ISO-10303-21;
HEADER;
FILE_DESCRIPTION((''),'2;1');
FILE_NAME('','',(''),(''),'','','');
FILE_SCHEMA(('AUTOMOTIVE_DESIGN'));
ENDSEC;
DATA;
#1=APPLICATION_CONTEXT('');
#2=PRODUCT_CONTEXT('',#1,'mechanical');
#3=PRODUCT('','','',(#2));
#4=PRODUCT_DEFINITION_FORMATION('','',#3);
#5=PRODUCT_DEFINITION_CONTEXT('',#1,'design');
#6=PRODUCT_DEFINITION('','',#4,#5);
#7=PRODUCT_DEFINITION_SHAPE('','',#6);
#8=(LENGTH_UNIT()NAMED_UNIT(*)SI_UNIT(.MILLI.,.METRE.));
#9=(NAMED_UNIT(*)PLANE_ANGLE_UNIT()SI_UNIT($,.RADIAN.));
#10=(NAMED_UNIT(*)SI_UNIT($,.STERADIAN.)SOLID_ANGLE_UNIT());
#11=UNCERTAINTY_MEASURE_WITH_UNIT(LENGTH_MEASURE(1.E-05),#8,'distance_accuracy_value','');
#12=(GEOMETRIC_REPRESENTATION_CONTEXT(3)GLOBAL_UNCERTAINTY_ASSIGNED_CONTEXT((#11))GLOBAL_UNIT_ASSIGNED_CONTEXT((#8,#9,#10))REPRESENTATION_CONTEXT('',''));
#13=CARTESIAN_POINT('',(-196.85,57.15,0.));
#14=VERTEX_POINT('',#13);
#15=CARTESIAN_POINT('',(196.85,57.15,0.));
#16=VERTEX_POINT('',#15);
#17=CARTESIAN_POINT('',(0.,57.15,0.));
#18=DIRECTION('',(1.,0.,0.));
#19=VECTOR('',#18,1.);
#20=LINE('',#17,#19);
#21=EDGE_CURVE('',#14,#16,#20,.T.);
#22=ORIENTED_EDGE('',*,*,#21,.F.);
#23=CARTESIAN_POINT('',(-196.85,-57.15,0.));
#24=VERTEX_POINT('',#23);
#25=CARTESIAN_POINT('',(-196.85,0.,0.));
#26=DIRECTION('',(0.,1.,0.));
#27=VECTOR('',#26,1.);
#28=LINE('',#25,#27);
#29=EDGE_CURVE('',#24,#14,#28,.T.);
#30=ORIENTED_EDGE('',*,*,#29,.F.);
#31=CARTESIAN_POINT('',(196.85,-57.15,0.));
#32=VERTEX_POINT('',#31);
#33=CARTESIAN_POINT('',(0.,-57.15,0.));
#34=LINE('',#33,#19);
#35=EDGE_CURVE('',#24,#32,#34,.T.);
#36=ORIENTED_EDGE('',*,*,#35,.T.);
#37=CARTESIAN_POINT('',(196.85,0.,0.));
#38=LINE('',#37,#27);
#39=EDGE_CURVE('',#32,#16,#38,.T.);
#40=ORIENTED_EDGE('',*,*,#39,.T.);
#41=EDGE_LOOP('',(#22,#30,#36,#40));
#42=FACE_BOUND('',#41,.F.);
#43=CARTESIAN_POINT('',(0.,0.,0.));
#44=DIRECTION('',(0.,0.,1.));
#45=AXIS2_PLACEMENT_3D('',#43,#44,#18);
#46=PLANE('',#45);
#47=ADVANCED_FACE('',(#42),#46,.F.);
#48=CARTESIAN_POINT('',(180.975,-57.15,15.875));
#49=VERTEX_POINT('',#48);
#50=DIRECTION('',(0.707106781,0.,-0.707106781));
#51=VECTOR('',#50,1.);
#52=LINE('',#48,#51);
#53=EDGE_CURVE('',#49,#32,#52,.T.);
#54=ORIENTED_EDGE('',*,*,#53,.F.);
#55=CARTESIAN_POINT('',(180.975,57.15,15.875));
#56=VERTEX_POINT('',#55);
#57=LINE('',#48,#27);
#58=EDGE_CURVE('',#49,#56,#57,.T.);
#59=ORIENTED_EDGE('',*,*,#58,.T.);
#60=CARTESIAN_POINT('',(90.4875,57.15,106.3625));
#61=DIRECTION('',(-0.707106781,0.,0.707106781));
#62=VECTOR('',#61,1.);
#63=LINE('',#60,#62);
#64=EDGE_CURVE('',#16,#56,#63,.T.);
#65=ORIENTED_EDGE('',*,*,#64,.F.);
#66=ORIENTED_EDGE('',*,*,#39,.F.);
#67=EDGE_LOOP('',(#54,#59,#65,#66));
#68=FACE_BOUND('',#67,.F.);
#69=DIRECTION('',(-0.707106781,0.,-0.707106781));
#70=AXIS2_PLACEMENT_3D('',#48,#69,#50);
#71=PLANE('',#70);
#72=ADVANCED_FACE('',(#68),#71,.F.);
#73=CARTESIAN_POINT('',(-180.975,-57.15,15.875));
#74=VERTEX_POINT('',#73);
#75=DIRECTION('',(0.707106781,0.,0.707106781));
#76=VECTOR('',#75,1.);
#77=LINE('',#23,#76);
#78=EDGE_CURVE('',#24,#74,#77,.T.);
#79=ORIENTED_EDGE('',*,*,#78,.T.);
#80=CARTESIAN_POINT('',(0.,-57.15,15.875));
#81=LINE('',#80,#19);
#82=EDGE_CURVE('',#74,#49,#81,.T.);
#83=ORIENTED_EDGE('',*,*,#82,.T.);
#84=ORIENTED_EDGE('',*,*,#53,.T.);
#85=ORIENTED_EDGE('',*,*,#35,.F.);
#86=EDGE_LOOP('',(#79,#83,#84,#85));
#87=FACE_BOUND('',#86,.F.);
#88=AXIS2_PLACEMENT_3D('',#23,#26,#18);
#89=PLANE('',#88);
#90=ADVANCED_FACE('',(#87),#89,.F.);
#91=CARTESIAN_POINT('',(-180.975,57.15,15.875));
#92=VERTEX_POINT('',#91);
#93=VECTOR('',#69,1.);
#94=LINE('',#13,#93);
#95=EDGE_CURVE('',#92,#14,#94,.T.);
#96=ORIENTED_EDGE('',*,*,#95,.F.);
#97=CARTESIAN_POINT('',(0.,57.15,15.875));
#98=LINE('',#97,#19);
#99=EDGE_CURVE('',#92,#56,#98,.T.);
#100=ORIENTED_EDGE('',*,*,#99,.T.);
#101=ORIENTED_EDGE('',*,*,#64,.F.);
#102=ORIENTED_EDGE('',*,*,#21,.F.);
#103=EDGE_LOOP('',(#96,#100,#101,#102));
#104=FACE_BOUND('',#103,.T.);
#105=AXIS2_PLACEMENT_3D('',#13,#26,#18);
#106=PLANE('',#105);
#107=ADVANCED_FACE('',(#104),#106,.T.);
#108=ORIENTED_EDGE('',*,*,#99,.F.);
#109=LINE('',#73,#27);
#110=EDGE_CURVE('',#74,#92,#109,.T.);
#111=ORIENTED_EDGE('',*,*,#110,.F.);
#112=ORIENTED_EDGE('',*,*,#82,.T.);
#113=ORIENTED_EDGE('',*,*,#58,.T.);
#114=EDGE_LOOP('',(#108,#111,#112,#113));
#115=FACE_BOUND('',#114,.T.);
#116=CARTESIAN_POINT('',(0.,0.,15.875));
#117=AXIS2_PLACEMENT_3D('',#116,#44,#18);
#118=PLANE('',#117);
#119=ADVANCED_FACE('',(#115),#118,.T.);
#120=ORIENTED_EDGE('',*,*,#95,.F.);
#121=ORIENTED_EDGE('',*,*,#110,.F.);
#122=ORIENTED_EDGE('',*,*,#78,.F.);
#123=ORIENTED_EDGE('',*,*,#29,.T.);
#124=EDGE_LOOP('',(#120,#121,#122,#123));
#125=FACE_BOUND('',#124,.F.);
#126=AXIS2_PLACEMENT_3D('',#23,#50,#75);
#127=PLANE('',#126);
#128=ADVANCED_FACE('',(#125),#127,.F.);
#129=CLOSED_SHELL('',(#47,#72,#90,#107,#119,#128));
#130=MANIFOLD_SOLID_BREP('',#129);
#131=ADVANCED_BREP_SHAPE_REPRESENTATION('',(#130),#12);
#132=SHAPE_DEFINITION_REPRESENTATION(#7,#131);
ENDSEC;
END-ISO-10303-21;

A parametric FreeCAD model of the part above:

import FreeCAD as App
import Part
import Sketcher
from FreeCAD import Vector
Q = App.Units.Quantity


def add_polygon(sketch, points):
    """Adds a closed chain of lines whose ends are joined by coincident constraints."""
    first, n = sketch.GeometryCount, len(points)
    for a, b in zip(points, points[1:] + points[:1]):
        sketch.addGeometry(Part.LineSegment(App.Vector(*a, 0), App.Vector(*b, 0)), False)
    for i in range(n):
        sketch.addConstraint(Sketcher.Constraint("Coincident", first + i, 2, first + (i + 1) % n, 1))

doc = App.newDocument("Part")
body = doc.addObject("PartDesign::Body", "Body")

sketch1 = body.newObject("Sketcher::SketchObject", "Sketch")
sketch1.AttachmentSupport = (doc.getObject("XY_Plane"), [""])
sketch1.MapMode = "FlatFace"
add_polygon(sketch1, [(-197, 57), (-197, -57), (197, -57), (197, 57)])
sketch1.addConstraint([
    Sketcher.Constraint("Vertical", 0),
    Sketcher.Constraint("Horizontal", 1),
    Sketcher.Constraint("Vertical", 2),
    Sketcher.Constraint("Horizontal", 3),
    Sketcher.Constraint("Symmetric", 0, 2, 2, 2, -1, 1),
    Sketcher.Constraint("DistanceX", 1, 1, 1, 2, Q("15.5 in")),
    Sketcher.Constraint("DistanceY", 0, 2, 0, 1, Q("4.5 in")),
])
pad1 = body.newObject("PartDesign::Pad", "Pad")
pad1.Profile = sketch1
pad1.Length = Q("0.625 in")

sketch2 = body.newObject("Sketcher::SketchObject", "Sketch001")
sketch2.AttachmentSupport = (doc.getObject("XZ_Plane"), [""])
sketch2.MapMode = "FlatFace"
sketch2.AttachmentOffset = App.Placement(Vector(0, 0, 2.25 * 25.4), App.Rotation())
add_polygon(sketch2, [(-226, 0), (-197, 0), (-181, 16), (-181, 49), (-226, 49)])
add_polygon(sketch2, [(226, 49), (181, 49), (181, 16), (197, 0), (226, 0)])
sketch2.addConstraint([
    Sketcher.Constraint("Horizontal", 0),
    Sketcher.Constraint("Vertical", 2),
    Sketcher.Constraint("Horizontal", 3),
    Sketcher.Constraint("Vertical", 4),
    Sketcher.Constraint("Horizontal", 5),
    Sketcher.Constraint("Vertical", 6),
    Sketcher.Constraint("Horizontal", 8),
    Sketcher.Constraint("Vertical", 9),
    Sketcher.Constraint("Symmetric", 0, 2, 7, 2, -1, 1),
    Sketcher.Constraint("Symmetric", 2, 2, 5, 2, -2),
    Sketcher.Constraint("Symmetric", 4, 2, 8, 2, -2),
    Sketcher.Constraint("Perpendicular", 1, 7),
    Sketcher.Constraint("Horizontal", 1, 2, 6, 2),
    Sketcher.Constraint("DistanceX", 0, 2, 7, 2, Q("15.5 in")),
    Sketcher.Constraint("DistanceX", 2, 2, 5, 2, Q("14.25 in")),
    Sketcher.Constraint("DistanceX", 0, 1, 0, 2, 29.170381),
    Sketcher.Constraint("DistanceY", 2, 1, 2, 2, 33.172567),
])
pocket1 = body.newObject("PartDesign::Pocket", "Pocket")
pocket1.Profile = sketch2
pocket1.Type = "ThroughAll"

doc.recompute()
